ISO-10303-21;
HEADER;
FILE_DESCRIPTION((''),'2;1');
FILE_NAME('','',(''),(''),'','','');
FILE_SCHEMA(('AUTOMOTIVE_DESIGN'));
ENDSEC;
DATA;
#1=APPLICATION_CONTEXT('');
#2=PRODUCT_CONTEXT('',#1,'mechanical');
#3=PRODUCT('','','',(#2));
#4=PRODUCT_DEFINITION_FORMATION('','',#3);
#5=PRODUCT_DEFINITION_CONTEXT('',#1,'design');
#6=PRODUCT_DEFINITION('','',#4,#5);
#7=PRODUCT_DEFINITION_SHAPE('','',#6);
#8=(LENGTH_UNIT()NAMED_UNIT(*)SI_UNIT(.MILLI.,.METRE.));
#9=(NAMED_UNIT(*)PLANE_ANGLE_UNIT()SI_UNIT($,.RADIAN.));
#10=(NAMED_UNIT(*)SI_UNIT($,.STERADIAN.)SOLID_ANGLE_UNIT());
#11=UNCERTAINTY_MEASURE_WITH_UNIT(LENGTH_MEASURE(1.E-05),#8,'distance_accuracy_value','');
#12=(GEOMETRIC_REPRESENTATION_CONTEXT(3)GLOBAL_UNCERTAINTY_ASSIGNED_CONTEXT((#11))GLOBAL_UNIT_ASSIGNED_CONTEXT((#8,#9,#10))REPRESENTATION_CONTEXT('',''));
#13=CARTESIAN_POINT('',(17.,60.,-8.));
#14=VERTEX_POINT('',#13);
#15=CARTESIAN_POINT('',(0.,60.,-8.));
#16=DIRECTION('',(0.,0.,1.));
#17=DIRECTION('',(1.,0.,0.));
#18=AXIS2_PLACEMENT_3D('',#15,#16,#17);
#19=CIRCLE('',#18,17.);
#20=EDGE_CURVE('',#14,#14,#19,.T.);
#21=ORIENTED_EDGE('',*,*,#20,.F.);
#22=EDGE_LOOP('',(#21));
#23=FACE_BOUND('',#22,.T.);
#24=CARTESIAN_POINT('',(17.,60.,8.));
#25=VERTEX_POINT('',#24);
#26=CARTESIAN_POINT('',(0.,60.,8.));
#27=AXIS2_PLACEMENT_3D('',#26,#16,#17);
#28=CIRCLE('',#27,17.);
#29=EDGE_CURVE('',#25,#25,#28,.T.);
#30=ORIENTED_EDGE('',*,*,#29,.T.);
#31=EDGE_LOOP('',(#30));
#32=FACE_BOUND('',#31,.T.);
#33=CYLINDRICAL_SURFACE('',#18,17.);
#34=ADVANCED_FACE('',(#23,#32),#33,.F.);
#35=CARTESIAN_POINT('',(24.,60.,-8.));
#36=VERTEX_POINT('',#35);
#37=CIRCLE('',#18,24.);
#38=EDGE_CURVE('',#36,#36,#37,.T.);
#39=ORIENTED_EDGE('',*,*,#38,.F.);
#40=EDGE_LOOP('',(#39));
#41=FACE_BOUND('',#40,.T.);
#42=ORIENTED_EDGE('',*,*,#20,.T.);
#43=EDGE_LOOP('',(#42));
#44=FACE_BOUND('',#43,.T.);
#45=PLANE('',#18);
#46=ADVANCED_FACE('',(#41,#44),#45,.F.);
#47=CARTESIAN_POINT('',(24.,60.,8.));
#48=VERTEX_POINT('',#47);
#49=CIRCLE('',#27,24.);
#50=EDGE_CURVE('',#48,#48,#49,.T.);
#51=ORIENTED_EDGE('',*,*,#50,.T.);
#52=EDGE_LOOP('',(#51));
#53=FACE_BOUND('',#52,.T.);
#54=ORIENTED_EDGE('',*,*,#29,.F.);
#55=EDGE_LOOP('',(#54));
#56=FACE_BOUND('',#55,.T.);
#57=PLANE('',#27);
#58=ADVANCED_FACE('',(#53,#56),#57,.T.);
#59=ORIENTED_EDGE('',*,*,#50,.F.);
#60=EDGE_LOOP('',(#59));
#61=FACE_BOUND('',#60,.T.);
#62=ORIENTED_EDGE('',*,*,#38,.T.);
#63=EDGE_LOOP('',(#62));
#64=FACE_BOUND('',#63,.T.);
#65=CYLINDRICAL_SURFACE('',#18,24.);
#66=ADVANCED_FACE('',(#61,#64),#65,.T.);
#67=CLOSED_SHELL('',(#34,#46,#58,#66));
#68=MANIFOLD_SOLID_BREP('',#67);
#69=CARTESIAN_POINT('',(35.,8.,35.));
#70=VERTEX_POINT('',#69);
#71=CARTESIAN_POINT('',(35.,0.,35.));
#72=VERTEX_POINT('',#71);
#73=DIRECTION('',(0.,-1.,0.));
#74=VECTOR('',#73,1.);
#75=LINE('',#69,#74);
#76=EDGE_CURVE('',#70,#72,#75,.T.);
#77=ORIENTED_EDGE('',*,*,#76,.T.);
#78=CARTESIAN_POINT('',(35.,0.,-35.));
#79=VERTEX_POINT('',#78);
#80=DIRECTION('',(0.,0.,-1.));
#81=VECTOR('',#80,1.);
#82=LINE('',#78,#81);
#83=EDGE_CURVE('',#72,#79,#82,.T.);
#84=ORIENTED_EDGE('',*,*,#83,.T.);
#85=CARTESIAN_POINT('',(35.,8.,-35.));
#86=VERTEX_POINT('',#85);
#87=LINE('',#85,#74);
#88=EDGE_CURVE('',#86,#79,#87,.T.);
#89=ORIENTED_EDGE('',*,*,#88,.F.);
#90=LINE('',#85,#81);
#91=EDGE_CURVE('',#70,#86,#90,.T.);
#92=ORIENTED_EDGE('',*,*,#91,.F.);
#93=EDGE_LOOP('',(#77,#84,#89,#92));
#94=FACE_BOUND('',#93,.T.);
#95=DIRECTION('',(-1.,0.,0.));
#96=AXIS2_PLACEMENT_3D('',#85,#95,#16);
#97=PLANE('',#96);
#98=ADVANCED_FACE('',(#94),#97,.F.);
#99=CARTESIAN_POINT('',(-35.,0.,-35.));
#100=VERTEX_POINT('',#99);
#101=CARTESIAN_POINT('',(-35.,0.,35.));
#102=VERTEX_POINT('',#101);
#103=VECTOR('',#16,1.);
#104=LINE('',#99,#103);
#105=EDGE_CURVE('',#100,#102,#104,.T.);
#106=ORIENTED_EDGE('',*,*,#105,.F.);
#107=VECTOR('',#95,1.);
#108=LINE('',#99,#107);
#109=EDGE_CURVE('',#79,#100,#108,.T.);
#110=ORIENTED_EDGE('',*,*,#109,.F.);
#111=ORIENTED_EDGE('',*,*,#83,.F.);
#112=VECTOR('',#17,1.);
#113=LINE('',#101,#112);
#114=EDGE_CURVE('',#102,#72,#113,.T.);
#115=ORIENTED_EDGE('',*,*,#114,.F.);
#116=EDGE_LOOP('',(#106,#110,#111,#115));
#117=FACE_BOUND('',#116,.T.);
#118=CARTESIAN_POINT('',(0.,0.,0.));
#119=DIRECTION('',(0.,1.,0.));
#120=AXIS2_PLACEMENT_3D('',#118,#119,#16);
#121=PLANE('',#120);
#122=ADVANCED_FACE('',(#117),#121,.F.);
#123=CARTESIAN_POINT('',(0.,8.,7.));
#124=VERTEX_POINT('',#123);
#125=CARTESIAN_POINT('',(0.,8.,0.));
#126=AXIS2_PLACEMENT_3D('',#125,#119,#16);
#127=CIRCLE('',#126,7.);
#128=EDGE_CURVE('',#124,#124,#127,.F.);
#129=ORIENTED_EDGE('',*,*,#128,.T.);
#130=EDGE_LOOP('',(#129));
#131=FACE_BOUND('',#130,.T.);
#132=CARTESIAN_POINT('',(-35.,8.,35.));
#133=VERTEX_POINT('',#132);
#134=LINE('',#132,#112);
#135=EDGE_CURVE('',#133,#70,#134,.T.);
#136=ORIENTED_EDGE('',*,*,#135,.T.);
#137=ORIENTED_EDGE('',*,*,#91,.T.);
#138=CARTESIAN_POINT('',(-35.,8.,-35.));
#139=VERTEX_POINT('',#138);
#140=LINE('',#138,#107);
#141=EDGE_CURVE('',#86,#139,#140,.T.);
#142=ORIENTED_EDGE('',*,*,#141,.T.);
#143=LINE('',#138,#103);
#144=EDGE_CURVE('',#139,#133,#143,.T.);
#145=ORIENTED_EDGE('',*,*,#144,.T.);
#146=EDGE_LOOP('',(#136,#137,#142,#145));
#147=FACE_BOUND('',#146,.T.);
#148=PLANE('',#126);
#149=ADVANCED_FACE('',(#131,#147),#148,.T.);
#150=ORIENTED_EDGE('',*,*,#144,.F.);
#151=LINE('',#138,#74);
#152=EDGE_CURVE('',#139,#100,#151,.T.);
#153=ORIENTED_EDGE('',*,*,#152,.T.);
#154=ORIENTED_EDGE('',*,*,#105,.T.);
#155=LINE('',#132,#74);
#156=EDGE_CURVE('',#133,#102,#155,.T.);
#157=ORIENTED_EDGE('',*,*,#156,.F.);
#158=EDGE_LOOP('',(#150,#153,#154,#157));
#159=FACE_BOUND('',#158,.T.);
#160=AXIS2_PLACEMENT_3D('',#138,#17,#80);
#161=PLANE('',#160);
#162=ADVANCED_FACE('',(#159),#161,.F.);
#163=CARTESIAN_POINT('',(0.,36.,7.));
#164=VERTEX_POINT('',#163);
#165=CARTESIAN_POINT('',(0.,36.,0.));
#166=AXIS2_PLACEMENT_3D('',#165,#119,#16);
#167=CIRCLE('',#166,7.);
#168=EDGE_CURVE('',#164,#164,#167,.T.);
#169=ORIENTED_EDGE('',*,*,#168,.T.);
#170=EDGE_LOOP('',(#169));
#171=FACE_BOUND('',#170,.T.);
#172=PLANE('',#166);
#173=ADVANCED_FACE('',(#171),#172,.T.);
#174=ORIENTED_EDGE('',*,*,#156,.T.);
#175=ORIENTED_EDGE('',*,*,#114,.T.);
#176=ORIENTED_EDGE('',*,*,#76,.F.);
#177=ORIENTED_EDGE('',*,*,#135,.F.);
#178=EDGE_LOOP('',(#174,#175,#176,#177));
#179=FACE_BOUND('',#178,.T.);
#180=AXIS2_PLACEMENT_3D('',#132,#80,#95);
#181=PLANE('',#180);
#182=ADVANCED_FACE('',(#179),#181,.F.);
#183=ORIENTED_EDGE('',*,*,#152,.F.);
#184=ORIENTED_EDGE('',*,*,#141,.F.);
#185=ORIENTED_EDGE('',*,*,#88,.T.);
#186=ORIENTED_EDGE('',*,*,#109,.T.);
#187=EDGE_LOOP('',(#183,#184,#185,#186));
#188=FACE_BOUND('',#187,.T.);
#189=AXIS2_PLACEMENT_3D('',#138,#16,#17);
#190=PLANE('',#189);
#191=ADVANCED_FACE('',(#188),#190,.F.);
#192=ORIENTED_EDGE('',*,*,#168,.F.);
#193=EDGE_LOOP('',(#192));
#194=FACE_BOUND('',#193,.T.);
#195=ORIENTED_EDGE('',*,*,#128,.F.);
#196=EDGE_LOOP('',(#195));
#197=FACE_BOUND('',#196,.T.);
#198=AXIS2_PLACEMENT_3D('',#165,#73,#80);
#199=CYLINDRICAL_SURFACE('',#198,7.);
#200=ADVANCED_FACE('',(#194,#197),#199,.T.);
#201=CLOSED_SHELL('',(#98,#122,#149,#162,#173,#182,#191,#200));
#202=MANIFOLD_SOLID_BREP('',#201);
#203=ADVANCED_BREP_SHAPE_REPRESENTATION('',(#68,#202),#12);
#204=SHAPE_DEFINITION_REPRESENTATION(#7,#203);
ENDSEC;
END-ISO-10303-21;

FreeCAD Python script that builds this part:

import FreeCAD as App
import Part
import Sketcher
from FreeCAD import Vector


def add_polygon(sketch, points):
    """Adds a closed chain of lines whose ends are joined by coincident constraints."""
    first, n = sketch.GeometryCount, len(points)
    for a, b in zip(points, points[1:] + points[:1]):
        sketch.addGeometry(Part.LineSegment(App.Vector(*a, 0), App.Vector(*b, 0)), False)
    for i in range(n):
        sketch.addConstraint(Sketcher.Constraint("Coincident", first + i, 2, first + (i + 1) % n, 1))

doc = App.newDocument("Part")
body = doc.addObject("PartDesign::Body", "Body")

sketch1 = doc.addObject("Sketcher::SketchObject", "Sketch")
body.addObject(sketch1)
sketch1.AttachmentSupport = (doc.XZ_Plane, [""])
sketch1.MapMode = "FlatFace"
add_polygon(sketch1, [(-35, -35), (-35, 35), (35, 35), (35, -35)])
sketch1.addConstraint(Sketcher.Constraint("Vertical", 0))
sketch1.addConstraint(Sketcher.Constraint("Horizontal", 1))
sketch1.addConstraint(Sketcher.Constraint("Vertical", 2))
sketch1.addConstraint(Sketcher.Constraint("Horizontal", 3))
sketch1.addConstraint(Sketcher.Constraint("Symmetric", 0, 2, 2, 2, -1, 1))
sketch1.addConstraint(Sketcher.Constraint("Equal", 3, 0))
sketch1.addConstraint(Sketcher.Constraint("DistanceX", 1, 1, 1, 2, 70.0))
pad1 = doc.addObject("PartDesign::Pad", "Pad")
body.addObject(pad1)
pad1.Profile = sketch1
pad1.Length = 8
pad1.Reversed = True

sketch2 = doc.addObject("Sketcher::SketchObject", "Sketch001")
body.addObject(sketch2)
sketch2.AttachmentSupport = (doc.XZ_Plane, [""])
sketch2.MapMode = "FlatFace"
sketch2.addGeometry(Part.Circle(Vector(0, 0, 0), Vector(0, 0, 1), 7), False)
sketch2.addConstraint(Sketcher.Constraint("Coincident", 0, 3, -1, 1))
sketch2.addConstraint(Sketcher.Constraint("Diameter", 0, 14.0))
pad2 = doc.addObject("PartDesign::Pad", "Pad001")
body.addObject(pad2)
pad2.Profile = sketch2
pad2.Length = 36
pad2.Reversed = True
body2 = doc.addObject("PartDesign::Body", "Body001")

sketch3 = doc.addObject("Sketcher::SketchObject", "Sketch002")
body2.addObject(sketch3)
sketch3.AttachmentSupport = (doc.getObject("XY_Plane001"), [""])
sketch3.MapMode = "FlatFace"
sketch3.addGeometry(Part.Circle(Vector(0, 60, 0), Vector(0, 0, 1), 24), False)
sketch3.addGeometry(Part.Circle(Vector(0, 60, 0), Vector(0, 0, 1), 17), False)
sketch3.addConstraint(Sketcher.Constraint("Coincident", 1, 3, 0, 3))
sketch3.addConstraint(Sketcher.Constraint("PointOnObject", 0, 3, -2))
sketch3.addConstraint(Sketcher.Constraint("Diameter", 0, 48.0))
sketch3.addConstraint(Sketcher.Constraint("Diameter", 1, 34.0))
sketch3.addConstraint(Sketcher.Constraint("DistanceY", -1, 1, 0, 3, 60.0))
pad3 = doc.addObject("PartDesign::Pad", "Pad002")
body2.addObject(pad3)
pad3.Profile = sketch3
pad3.Type = "TwoLengths"
pad3.Length = 8
pad3.Length2 = 8

doc.recompute()
